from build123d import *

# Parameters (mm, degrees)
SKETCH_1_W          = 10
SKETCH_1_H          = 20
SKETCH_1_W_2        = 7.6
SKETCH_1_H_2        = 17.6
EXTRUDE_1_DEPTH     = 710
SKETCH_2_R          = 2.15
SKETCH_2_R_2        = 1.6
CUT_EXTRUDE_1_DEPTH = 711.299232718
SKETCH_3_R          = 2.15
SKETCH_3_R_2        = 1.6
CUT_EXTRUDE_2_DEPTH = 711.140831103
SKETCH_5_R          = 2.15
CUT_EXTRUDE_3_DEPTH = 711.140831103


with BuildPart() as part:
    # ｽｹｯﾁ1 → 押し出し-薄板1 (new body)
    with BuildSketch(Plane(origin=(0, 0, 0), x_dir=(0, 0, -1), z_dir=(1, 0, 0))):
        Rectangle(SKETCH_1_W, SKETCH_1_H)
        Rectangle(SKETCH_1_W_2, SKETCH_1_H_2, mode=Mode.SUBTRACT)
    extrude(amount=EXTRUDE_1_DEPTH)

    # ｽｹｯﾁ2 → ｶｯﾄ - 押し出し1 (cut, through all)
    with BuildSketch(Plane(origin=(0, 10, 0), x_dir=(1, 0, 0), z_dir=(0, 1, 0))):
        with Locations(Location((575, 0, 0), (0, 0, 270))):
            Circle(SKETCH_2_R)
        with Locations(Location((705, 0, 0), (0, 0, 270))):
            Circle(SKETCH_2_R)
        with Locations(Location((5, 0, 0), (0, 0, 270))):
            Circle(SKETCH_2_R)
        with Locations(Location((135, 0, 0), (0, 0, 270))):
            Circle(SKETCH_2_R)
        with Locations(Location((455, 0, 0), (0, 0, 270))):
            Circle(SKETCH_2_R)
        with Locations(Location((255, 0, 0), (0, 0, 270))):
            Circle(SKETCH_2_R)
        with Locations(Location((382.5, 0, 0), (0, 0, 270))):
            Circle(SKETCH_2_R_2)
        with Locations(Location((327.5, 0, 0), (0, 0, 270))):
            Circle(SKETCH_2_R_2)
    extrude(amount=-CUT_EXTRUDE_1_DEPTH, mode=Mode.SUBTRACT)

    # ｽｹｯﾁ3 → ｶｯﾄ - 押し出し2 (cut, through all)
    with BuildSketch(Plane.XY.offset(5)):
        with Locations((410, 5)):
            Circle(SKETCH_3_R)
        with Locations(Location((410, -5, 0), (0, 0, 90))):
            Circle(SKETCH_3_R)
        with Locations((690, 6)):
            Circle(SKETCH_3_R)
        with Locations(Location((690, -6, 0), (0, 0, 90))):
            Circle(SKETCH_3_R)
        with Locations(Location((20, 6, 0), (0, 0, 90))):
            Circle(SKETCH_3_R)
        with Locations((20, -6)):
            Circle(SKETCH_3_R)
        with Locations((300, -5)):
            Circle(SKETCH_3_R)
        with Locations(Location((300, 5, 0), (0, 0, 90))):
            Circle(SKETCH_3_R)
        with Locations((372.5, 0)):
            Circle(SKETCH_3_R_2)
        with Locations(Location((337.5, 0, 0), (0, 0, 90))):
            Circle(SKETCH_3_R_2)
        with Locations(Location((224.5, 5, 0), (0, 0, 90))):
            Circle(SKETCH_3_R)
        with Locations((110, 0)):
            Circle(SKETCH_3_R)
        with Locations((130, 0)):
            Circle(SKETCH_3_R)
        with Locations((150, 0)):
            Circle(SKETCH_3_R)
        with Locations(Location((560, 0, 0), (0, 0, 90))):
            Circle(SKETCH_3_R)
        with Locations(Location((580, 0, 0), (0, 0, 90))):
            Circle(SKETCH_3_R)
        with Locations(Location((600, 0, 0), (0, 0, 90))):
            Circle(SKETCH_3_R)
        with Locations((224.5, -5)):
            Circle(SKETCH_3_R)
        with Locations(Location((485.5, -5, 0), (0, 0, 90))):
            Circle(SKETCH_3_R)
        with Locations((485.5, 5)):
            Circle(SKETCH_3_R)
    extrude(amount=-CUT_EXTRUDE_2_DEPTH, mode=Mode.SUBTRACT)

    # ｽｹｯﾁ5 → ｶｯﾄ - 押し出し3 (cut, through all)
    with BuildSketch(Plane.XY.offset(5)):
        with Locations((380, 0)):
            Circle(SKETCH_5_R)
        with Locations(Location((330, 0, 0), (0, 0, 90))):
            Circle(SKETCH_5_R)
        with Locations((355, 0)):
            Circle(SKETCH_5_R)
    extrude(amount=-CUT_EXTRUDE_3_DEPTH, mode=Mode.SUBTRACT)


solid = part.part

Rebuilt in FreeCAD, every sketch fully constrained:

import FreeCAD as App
import Part
import Sketcher
from FreeCAD import Vector


def add_polygon(sketch, points):
    """Adds a closed chain of lines whose ends are joined by coincident constraints."""
    first, n = sketch.GeometryCount, len(points)
    for a, b in zip(points, points[1:] + points[:1]):
        sketch.addGeometry(Part.LineSegment(App.Vector(*a, 0), App.Vector(*b, 0)), False)
    for i in range(n):
        sketch.addConstraint(Sketcher.Constraint("Coincident", first + i, 2, first + (i + 1) % n, 1))

doc = App.newDocument("Part")
body = doc.addObject("PartDesign::Body", "Body")

# Sketch on YZ plane
sketch1 = body.newObject("Sketcher::SketchObject", "Sketch")
sketch1.AttachmentSupport = (doc.getObject("YZ_Plane"), [""])
sketch1.MapMode = "FlatFace"
add_polygon(sketch1, [(10, 5), (-10, 5), (-10, -5), (10, -5)])  # lines 0-3
add_polygon(sketch1, [(-8.8, -3.8), (-8.8, 3.8), (8.8, 3.8), (8.8, -3.8)])  # lines 4-7
sketch1.addConstraint(Sketcher.Constraint("Horizontal", 0))
sketch1.addConstraint(Sketcher.Constraint("Vertical", 1))
sketch1.addConstraint(Sketcher.Constraint("Horizontal", 2))
sketch1.addConstraint(Sketcher.Constraint("Vertical", 3))
sketch1.addConstraint(Sketcher.Constraint("Vertical", 4))
sketch1.addConstraint(Sketcher.Constraint("Horizontal", 5))
sketch1.addConstraint(Sketcher.Constraint("Vertical", 6))
sketch1.addConstraint(Sketcher.Constraint("Horizontal", 7))
sketch1.addConstraint(Sketcher.Constraint("Symmetric", 0, 2, 2, 2, -1, 1))
sketch1.addConstraint(Sketcher.Constraint("Symmetric", 4, 2, 6, 2, -1, 1))
sketch1.addConstraint(Sketcher.Constraint("DistanceX", 0, 2, 0, 1, 20.0))
sketch1.addConstraint(Sketcher.Constraint("DistanceY", 1, 2, 1, 1, 10.0))
sketch1.addConstraint(Sketcher.Constraint("DistanceX", 5, 1, 5, 2, 17.6))
sketch1.addConstraint(Sketcher.Constraint("DistanceY", 4, 1, 4, 2, 7.6))
pad1 = body.newObject("PartDesign::Pad", "Pad")
pad1.Profile = sketch1
pad1.Length = 710

# Sketch on XZ plane
sketch2 = body.newObject("Sketcher::SketchObject", "Sketch001")
sketch2.AttachmentSupport = (doc.getObject("XZ_Plane"), [""])
sketch2.MapMode = "FlatFace"
sketch2.AttachmentOffset = App.Placement(Vector(0, 0, -10), App.Rotation())
sketch2.addGeometry(Part.Circle(Vector(575, 0, 0), Vector(0, 0, 1), 2.15), False)
sketch2.addGeometry(Part.Circle(Vector(705, 0, 0), Vector(0, 0, 1), 2.15), False)
sketch2.addGeometry(Part.Circle(Vector(5, 0, 0), Vector(0, 0, 1), 2.15), False)
sketch2.addGeometry(Part.Circle(Vector(135, 0, 0), Vector(0, 0, 1), 2.15), False)
sketch2.addGeometry(Part.Circle(Vector(455, 0, 0), Vector(0, 0, 1), 2.15), False)
sketch2.addGeometry(Part.Circle(Vector(255, 0, 0), Vector(0, 0, 1), 2.15), False)
sketch2.addGeometry(Part.Circle(Vector(382.5, 0, 0), Vector(0, 0, 1), 1.6), False)
sketch2.addGeometry(Part.Circle(Vector(327.5, 0, 0), Vector(0, 0, 1), 1.6), False)
sketch2.addConstraint(Sketcher.Constraint("Equal", 0, 1))
sketch2.addConstraint(Sketcher.Constraint("Equal", 1, 2))
sketch2.addConstraint(Sketcher.Constraint("Equal", 2, 3))
sketch2.addConstraint(Sketcher.Constraint("Equal", 3, 4))
sketch2.addConstraint(Sketcher.Constraint("Equal", 4, 5))
sketch2.addConstraint(Sketcher.Constraint("Equal", 6, 7))
sketch2.addConstraint(Sketcher.Constraint("PointOnObject", 0, 3, -1))
sketch2.addConstraint(Sketcher.Constraint("PointOnObject", 1, 3, -1))
sketch2.addConstraint(Sketcher.Constraint("PointOnObject", 2, 3, -1))
sketch2.addConstraint(Sketcher.Constraint("PointOnObject", 3, 3, -1))
sketch2.addConstraint(Sketcher.Constraint("PointOnObject", 4, 3, -1))
sketch2.addConstraint(Sketcher.Constraint("PointOnObject", 5, 3, -1))
sketch2.addConstraint(Sketcher.Constraint("PointOnObject", 6, 3, -1))
sketch2.addConstraint(Sketcher.Constraint("PointOnObject", 7, 3, -1))
sketch2.addConstraint(Sketcher.Constraint("Diameter", 0, 4.3))
sketch2.addConstraint(Sketcher.Constraint("Diameter", 6, 3.2))
sketch2.addConstraint(Sketcher.Constraint("DistanceX", -1, 1, 0, 3, 575.0))
sketch2.addConstraint(Sketcher.Constraint("DistanceX", -1, 1, 1, 3, 705.0))
sketch2.addConstraint(Sketcher.Constraint("DistanceX", -1, 1, 2, 3, 5.0))
sketch2.addConstraint(Sketcher.Constraint("DistanceX", -1, 1, 3, 3, 135.0))
sketch2.addConstraint(Sketcher.Constraint("DistanceX", -1, 1, 4, 3, 455.0))
sketch2.addConstraint(Sketcher.Constraint("DistanceX", -1, 1, 5, 3, 255.0))
sketch2.addConstraint(Sketcher.Constraint("DistanceX", 7, 3, 6, 3, 55.0))
sketch2.addConstraint(Sketcher.Constraint("DistanceX", -1, 1, 6, 3, 382.5))
pocket1 = body.newObject("PartDesign::Pocket", "Pocket")
pocket1.Profile = sketch2
pocket1.Type = "ThroughAll"
pocket1.Reversed = True

# Sketch on XY plane
sketch3 = body.newObject("Sketcher::SketchObject", "Sketch002")
sketch3.AttachmentSupport = (doc.getObject("XY_Plane"), [""])
sketch3.MapMode = "FlatFace"
sketch3.AttachmentOffset = App.Placement(Vector(0, 0, 5), App.Rotation())
sketch3.addGeometry(Part.Circle(Vector(410, 5, 0), Vector(0, 0, 1), 2.15), False)
sketch3.addGeometry(Part.Circle(Vector(410, -5, 0), Vector(0, 0, 1), 2.15), False)
sketch3.addGeometry(Part.Circle(Vector(690, 6, 0), Vector(0, 0, 1), 2.15), False)
sketch3.addGeometry(Part.Circle(Vector(690, -6, 0), Vector(0, 0, 1), 2.15), False)
sketch3.addGeometry(Part.Circle(Vector(20, 6, 0), Vector(0, 0, 1), 2.15), False)
sketch3.addGeometry(Part.Circle(Vector(20, -6, 0), Vector(0, 0, 1), 2.15), False)
sketch3.addGeometry(Part.Circle(Vector(300, -5, 0), Vector(0, 0, 1), 2.15), False)
sketch3.addGeometry(Part.Circle(Vector(300, 5, 0), Vector(0, 0, 1), 2.15), False)
sketch3.addGeometry(Part.Circle(Vector(372.5, 0, 0), Vector(0, 0, 1), 1.6), False)
sketch3.addGeometry(Part.Circle(Vector(337.5, 0, 0), Vector(0, 0, 1), 1.6), False)
sketch3.addGeometry(Part.Circle(Vector(224.5, 5, 0), Vector(0, 0, 1), 2.15), False)
sketch3.addGeometry(Part.Circle(Vector(110, 0, 0), Vector(0, 0, 1), 2.15), False)
sketch3.addGeometry(Part.Circle(Vector(130, 0, 0), Vector(0, 0, 1), 2.15), False)
sketch3.addGeometry(Part.Circle(Vector(150, 0, 0), Vector(0, 0, 1), 2.15), False)
sketch3.addGeometry(Part.Circle(Vector(560, 0, 0), Vector(0, 0, 1), 2.15), False)
sketch3.addGeometry(Part.Circle(Vector(580, 0, 0), Vector(0, 0, 1), 2.15), False)
sketch3.addGeometry(Part.Circle(Vector(600, 0, 0), Vector(0, 0, 1), 2.15), False)
sketch3.addGeometry(Part.Circle(Vector(224.5, -5, 0), Vector(0, 0, 1), 2.15), False)
sketch3.addGeometry(Part.Circle(Vector(485.5, -5, 0), Vector(0, 0, 1), 2.15), False)
sketch3.addGeometry(Part.Circle(Vector(485.5, 5, 0), Vector(0, 0, 1), 2.15), False)
sketch3.addConstraint(Sketcher.Constraint("Equal", 0, 1))
sketch3.addConstraint(Sketcher.Constraint("Equal", 1, 2))
sketch3.addConstraint(Sketcher.Constraint("Equal", 2, 3))
sketch3.addConstraint(Sketcher.Constraint("Equal", 3, 4))
sketch3.addConstraint(Sketcher.Constraint("Equal", 4, 5))
sketch3.addConstraint(Sketcher.Constraint("Equal", 5, 6))
sketch3.addConstraint(Sketcher.Constraint("Equal", 6, 7))
sketch3.addConstraint(Sketcher.Constraint("Equal", 8, 9))
sketch3.addConstraint(Sketcher.Constraint("Equal", 7, 10))
sketch3.addConstraint(Sketcher.Constraint("Equal", 10, 11))
sketch3.addConstraint(Sketcher.Constraint("Equal", 11, 12))
sketch3.addConstraint(Sketcher.Constraint("Equal", 12, 13))
sketch3.addConstraint(Sketcher.Constraint("Equal", 13, 14))
sketch3.addConstraint(Sketcher.Constraint("Equal", 14, 15))
sketch3.addConstraint(Sketcher.Constraint("Equal", 15, 16))
sketch3.addConstraint(Sketcher.Constraint("Equal", 16, 17))
sketch3.addConstraint(Sketcher.Constraint("Equal", 17, 18))
sketch3.addConstraint(Sketcher.Constraint("Equal", 18, 19))
sketch3.addConstraint(Sketcher.Constraint("Symmetric", 0, 3, 1, 3, -1))
sketch3.addConstraint(Sketcher.Constraint("Symmetric", 2, 3, 3, 3, -1))
sketch3.addConstraint(Sketcher.Constraint("Symmetric", 4, 3, 5, 3, -1))
sketch3.addConstraint(Sketcher.Constraint("Symmetric", 6, 3, 7, 3, -1))
sketch3.addConstraint(Sketcher.Constraint("Symmetric", 10, 3, 17, 3, -1))
sketch3.addConstraint(Sketcher.Constraint("Symmetric", 18, 3, 19, 3, -1))
sketch3.addConstraint(Sketcher.Constraint("PointOnObject", 8, 3, -1))
sketch3.addConstraint(Sketcher.Constraint("PointOnObject", 9, 3, -1))
sketch3.addConstraint(Sketcher.Constraint("PointOnObject", 11, 3, -1))
sketch3.addConstraint(Sketcher.Constraint("PointOnObject", 12, 3, -1))
sketch3.addConstraint(Sketcher.Constraint("PointOnObject", 13, 3, -1))
sketch3.addConstraint(Sketcher.Constraint("PointOnObject", 14, 3, -1))
sketch3.addConstraint(Sketcher.Constraint("PointOnObject", 15, 3, -1))
sketch3.addConstraint(Sketcher.Constraint("PointOnObject", 16, 3, -1))
sketch3.addConstraint(Sketcher.Constraint("Horizontal", 2, 3, 4, 3))
sketch3.addConstraint(Sketcher.Constraint("Horizontal", 1, 3, 6, 3))
sketch3.addConstraint(Sketcher.Constraint("Horizontal", 7, 3, 10, 3))
sketch3.addConstraint(Sketcher.Constraint("Horizontal", 17, 3, 18, 3))
sketch3.addConstraint(Sketcher.Constraint("Diameter", 0, 4.3))
sketch3.addConstraint(Sketcher.Constraint("Diameter", 8, 3.2))
sketch3.addConstraint(Sketcher.Constraint("DistanceX", -1, 1, 0, 3, 410.0))
sketch3.addConstraint(Sketcher.Constraint("DistanceY", -1, 1, 0, 3, 5.0))
sketch3.addConstraint(Sketcher.Constraint("DistanceX", -1, 1, 2, 3, 690.0))
sketch3.addConstraint(Sketcher.Constraint("DistanceY", -1, 1, 2, 3, 6.0))
sketch3.addConstraint(Sketcher.Constraint("DistanceX", -1, 1, 4, 3, 20.0))
sketch3.addConstraint(Sketcher.Constraint("DistanceX", -1, 1, 6, 3, 300.0))
sketch3.addConstraint(Sketcher.Constraint("DistanceX", -1, 1, 11, 3, 110.0))
sketch3.addConstraint(Sketcher.Constraint("DistanceX", -1, 1, 12, 3, 130.0))
sketch3.addConstraint(Sketcher.Constraint("DistanceX", -1, 1, 13, 3, 150.0))
sketch3.addConstraint(Sketcher.Constraint("DistanceX", -1, 1, 14, 3, 560.0))
sketch3.addConstraint(Sketcher.Constraint("DistanceX", -1, 1, 15, 3, 580.0))
sketch3.addConstraint(Sketcher.Constraint("DistanceX", -1, 1, 16, 3, 600.0))
sketch3.addConstraint(Sketcher.Constraint("DistanceX", 9, 3, 8, 3, 35.0))
sketch3.addConstraint(Sketcher.Constraint("DistanceX", 10, 3, 9, 3, 113.0))
sketch3.addConstraint(Sketcher.Constraint("DistanceX", 8, 3, 18, 3, 113.0))
sketch3.addConstraint(Sketcher.Constraint("DistanceX", -1, 1, 8, 3, 372.5))
pocket2 = body.newObject("PartDesign::Pocket", "Pocket001")
pocket2.Profile = sketch3
pocket2.Type = "ThroughAll"

# Sketch on XY plane
sketch4 = body.newObject("Sketcher::SketchObject", "Sketch003")
sketch4.AttachmentSupport = (doc.getObject("XY_Plane"), [""])
sketch4.MapMode = "FlatFace"
sketch4.AttachmentOffset = App.Placement(Vector(0, 0, 5), App.Rotation())
sketch4.addGeometry(Part.Circle(Vector(380, 0, 0), Vector(0, 0, 1), 2.15), False)
sketch4.addGeometry(Part.Circle(Vector(330, 0, 0), Vector(0, 0, 1), 2.15), False)
sketch4.addGeometry(Part.Circle(Vector(355, 0, 0), Vector(0, 0, 1), 2.15), False)
sketch4.addConstraint(Sketcher.Constraint("Equal", 0, 1))
sketch4.addConstraint(Sketcher.Constraint("Equal", 1, 2))
sketch4.addConstraint(Sketcher.Constraint("PointOnObject", 0, 3, -1))
sketch4.addConstraint(Sketcher.Constraint("PointOnObject", 1, 3, -1))
sketch4.addConstraint(Sketcher.Constraint("PointOnObject", 2, 3, -1))
sketch4.addConstraint(Sketcher.Constraint("Diameter", 0, 4.3))
sketch4.addConstraint(Sketcher.Constraint("DistanceX", -1, 1, 0, 3, 380.0))
sketch4.addConstraint(Sketcher.Constraint("DistanceX", -1, 1, 1, 3, 330.0))
sketch4.addConstraint(Sketcher.Constraint("DistanceX", -1, 1, 2, 3, 355.0))
pocket3 = body.newObject("PartDesign::Pocket", "Pocket002")
pocket3.Profile = sketch4
pocket3.Type = "ThroughAll"

doc.recompute()
